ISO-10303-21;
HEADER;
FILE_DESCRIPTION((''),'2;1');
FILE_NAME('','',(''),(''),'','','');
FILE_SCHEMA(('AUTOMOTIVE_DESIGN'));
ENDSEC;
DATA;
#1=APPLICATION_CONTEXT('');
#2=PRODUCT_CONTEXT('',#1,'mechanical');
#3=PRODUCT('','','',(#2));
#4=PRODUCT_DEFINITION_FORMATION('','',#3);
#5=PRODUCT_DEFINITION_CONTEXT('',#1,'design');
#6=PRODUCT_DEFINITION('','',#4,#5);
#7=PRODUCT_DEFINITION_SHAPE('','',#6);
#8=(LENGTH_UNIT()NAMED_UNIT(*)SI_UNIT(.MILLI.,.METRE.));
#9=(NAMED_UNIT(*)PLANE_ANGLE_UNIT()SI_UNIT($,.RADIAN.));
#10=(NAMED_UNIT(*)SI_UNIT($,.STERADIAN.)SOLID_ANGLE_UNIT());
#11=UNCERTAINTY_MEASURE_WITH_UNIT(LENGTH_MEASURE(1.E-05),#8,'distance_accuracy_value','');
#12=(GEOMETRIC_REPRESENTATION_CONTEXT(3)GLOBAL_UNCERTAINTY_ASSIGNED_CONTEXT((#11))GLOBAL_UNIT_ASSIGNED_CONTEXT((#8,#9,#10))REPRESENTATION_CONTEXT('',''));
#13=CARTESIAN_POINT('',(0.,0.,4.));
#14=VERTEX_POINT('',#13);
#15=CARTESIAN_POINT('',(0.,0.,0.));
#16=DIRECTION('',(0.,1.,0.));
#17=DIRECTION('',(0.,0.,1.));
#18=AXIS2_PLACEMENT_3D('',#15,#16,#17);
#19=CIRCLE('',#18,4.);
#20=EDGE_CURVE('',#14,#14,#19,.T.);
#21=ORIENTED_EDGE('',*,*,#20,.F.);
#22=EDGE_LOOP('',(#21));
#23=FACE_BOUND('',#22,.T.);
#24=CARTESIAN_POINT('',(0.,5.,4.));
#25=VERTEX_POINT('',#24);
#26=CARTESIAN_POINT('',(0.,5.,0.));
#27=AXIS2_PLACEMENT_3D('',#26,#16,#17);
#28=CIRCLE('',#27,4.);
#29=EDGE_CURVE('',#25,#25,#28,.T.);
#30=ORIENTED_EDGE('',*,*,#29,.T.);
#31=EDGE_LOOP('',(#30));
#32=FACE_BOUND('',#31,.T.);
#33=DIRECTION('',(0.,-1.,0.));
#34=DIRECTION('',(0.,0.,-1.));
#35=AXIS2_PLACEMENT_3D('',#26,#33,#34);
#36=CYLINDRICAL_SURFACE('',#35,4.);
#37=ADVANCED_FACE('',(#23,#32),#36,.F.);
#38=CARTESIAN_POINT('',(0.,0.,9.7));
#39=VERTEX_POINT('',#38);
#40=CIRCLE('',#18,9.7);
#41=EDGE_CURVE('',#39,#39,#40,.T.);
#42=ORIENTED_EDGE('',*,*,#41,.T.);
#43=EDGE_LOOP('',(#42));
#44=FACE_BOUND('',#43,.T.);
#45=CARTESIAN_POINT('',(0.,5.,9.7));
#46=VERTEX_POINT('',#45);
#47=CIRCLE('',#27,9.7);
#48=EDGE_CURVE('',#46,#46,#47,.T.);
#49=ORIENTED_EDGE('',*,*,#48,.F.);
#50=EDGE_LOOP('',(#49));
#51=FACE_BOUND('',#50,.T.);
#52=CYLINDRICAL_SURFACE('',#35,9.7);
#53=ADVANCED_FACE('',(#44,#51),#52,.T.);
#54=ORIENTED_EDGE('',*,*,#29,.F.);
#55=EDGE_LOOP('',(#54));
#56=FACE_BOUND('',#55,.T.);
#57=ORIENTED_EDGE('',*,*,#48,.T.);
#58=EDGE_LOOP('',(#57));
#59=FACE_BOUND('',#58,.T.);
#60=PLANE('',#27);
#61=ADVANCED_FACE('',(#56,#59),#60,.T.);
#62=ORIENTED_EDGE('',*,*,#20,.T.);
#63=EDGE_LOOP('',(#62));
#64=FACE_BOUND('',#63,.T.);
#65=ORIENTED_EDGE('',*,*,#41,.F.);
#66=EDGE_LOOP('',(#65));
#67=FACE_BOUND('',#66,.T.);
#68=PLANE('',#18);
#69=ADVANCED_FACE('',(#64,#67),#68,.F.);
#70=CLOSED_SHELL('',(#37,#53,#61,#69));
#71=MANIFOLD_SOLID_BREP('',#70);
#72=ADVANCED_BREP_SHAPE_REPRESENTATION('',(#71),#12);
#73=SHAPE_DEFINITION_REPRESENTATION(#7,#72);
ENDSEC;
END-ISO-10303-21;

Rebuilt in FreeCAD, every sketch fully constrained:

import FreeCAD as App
import Part
import Sketcher

V = App.Vector

doc = App.newDocument("Part")
body = doc.addObject("PartDesign::Body", "Body")

# Sketch on XZ plane
sketch1 = body.newObject("Sketcher::SketchObject", "Sketch")
sketch1.AttachmentSupport = (doc.getObject("XZ_Plane"), [""])
sketch1.MapMode = "FlatFace"
sketch1.addGeometry([
    Part.Circle(V(0, 0, 0), V(0, 0, 1), 9.7),
    Part.Circle(V(0, 0, 0), V(0, 0, 1), 4),
], False)
sketch1.addConstraint([
    Sketcher.Constraint("Coincident", 0, 3, -1, 1),
    Sketcher.Constraint("Coincident", 1, 3, -1, 1),
    Sketcher.Constraint("Diameter", 1, 8.0),
    Sketcher.Constraint("Diameter", 0, 19.4),
])
pad1 = body.newObject("PartDesign::Pad", "Pad")
pad1.Profile = sketch1
pad1.Length = 5
pad1.Reversed = True

doc.recompute()
